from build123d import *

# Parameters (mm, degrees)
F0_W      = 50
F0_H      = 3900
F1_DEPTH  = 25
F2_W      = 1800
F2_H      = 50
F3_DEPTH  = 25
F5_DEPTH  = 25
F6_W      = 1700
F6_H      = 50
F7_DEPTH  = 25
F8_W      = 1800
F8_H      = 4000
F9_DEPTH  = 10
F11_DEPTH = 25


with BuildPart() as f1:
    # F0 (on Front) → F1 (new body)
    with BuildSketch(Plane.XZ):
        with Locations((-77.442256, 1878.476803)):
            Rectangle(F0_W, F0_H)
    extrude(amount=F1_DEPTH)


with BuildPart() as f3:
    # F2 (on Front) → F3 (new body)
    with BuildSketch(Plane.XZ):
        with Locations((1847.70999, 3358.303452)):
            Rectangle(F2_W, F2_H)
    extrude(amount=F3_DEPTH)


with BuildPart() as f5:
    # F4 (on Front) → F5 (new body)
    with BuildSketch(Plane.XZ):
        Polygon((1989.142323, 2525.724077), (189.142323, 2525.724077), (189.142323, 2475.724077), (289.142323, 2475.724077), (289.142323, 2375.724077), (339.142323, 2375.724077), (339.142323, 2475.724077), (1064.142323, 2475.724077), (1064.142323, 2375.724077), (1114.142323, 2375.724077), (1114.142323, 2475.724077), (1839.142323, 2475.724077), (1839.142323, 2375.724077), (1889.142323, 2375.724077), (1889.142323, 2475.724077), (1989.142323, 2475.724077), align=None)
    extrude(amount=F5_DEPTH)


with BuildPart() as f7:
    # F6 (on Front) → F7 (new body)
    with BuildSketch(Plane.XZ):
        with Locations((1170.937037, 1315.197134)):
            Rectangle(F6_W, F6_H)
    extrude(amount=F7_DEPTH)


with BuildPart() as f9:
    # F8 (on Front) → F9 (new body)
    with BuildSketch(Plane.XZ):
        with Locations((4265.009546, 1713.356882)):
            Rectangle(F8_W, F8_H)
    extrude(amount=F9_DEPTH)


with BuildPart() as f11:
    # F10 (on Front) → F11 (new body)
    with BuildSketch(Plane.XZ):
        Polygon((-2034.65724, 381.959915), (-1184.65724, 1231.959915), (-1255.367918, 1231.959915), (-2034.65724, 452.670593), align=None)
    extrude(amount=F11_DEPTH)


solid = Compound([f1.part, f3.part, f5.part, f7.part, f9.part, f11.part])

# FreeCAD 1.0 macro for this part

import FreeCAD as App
import Part
import Sketcher
Q = App.Units.Quantity

doc = App.newDocument("Part")
body = doc.addObject("PartDesign::Body", "Body")

# Sketch on XZ plane
sketch1 = body.newObject("Sketcher::SketchObject", "Sketch")
sketch1.AttachmentSupport = (doc.getObject("XZ_Plane"), [""])
sketch1.MapMode = "FlatFace"
sketch1.addGeometry(Part.LineSegment(App.Vector(-102.442256, 3828.476803, 0), App.Vector(-102.442256, -71.523197, 0)), False)
sketch1.addGeometry(Part.LineSegment(App.Vector(-102.442256, -71.523197, 0), App.Vector(-52.442256, -71.523197, 0)), False)
sketch1.addGeometry(Part.LineSegment(App.Vector(-52.442256, -71.523197, 0), App.Vector(-52.442256, 3828.476803, 0)), False)
sketch1.addGeometry(Part.LineSegment(App.Vector(-52.442256, 3828.476803, 0), App.Vector(-102.442256, 3828.476803, 0)), False)
sketch1.addConstraint(Sketcher.Constraint("Coincident", 0, 2, 1, 1))
sketch1.addConstraint(Sketcher.Constraint("Coincident", 1, 2, 2, 1))
sketch1.addConstraint(Sketcher.Constraint("Coincident", 2, 2, 3, 1))
sketch1.addConstraint(Sketcher.Constraint("Coincident", 3, 2, 0, 1))
sketch1.addConstraint(Sketcher.Constraint("Vertical", 0))
sketch1.addConstraint(Sketcher.Constraint("Horizontal", 1))
sketch1.addConstraint(Sketcher.Constraint("Vertical", 2))
sketch1.addConstraint(Sketcher.Constraint("Horizontal", 3))
sketch1.addConstraint(Sketcher.Constraint("DistanceX", 1, 1, 1, 2, Q("50 mm")))
sketch1.addConstraint(Sketcher.Constraint("DistanceY", 0, 2, 0, 1, Q("3900 mm")))
sketch1.addConstraint(Sketcher.Constraint("DistanceX", 0, 2, -1, 1, Q("102.442256 mm")))
sketch1.addConstraint(Sketcher.Constraint("DistanceY", 0, 2, -1, 1, Q("71.523197 mm")))
pad1 = body.newObject("PartDesign::Pad", "Pad")
pad1.Profile = sketch1
pad1.Length = 25
body2 = doc.addObject("PartDesign::Body", "Body001")

# Sketch on XZ plane
sketch2 = body2.newObject("Sketcher::SketchObject", "Sketch001")
sketch2.AttachmentSupport = (doc.getObject("XZ_Plane001"), [""])
sketch2.MapMode = "FlatFace"
sketch2.addGeometry(Part.LineSegment(App.Vector(947.70999, 3383.303452, 0), App.Vector(947.70999, 3333.303452, 0)), False)
sketch2.addGeometry(Part.LineSegment(App.Vector(947.70999, 3333.303452, 0), App.Vector(2747.70999, 3333.303452, 0)), False)
sketch2.addGeometry(Part.LineSegment(App.Vector(2747.70999, 3333.303452, 0), App.Vector(2747.70999, 3383.303452, 0)), False)
sketch2.addGeometry(Part.LineSegment(App.Vector(2747.70999, 3383.303452, 0), App.Vector(947.70999, 3383.303452, 0)), False)
sketch2.addConstraint(Sketcher.Constraint("Coincident", 0, 2, 1, 1))
sketch2.addConstraint(Sketcher.Constraint("Coincident", 1, 2, 2, 1))
sketch2.addConstraint(Sketcher.Constraint("Coincident", 2, 2, 3, 1))
sketch2.addConstraint(Sketcher.Constraint("Coincident", 3, 2, 0, 1))
sketch2.addConstraint(Sketcher.Constraint("Vertical", 0))
sketch2.addConstraint(Sketcher.Constraint("Horizontal", 1))
sketch2.addConstraint(Sketcher.Constraint("Vertical", 2))
sketch2.addConstraint(Sketcher.Constraint("Horizontal", 3))
sketch2.addConstraint(Sketcher.Constraint("DistanceX", 1, 1, 1, 2, Q("1800 mm")))
sketch2.addConstraint(Sketcher.Constraint("DistanceY", 0, 2, 0, 1, Q("50 mm")))
sketch2.addConstraint(Sketcher.Constraint("DistanceX", -1, 1, 0, 2, Q("947.70999 mm")))
sketch2.addConstraint(Sketcher.Constraint("DistanceY", -1, 1, 0, 2, Q("3333.303452 mm")))
pad2 = body2.newObject("PartDesign::Pad", "Pad001")
pad2.Profile = sketch2
pad2.Length = 25
body3 = doc.addObject("PartDesign::Body", "Body002")

# Sketch on XZ plane
sketch3 = body3.newObject("Sketcher::SketchObject", "Sketch002")
sketch3.AttachmentSupport = (doc.getObject("XZ_Plane002"), [""])
sketch3.MapMode = "FlatFace"
sketch3.addGeometry(Part.LineSegment(App.Vector(1989.142323, 2525.724077, 0), App.Vector(189.142323, 2525.724077, 0)), False)
sketch3.addGeometry(Part.LineSegment(App.Vector(189.142323, 2525.724077, 0), App.Vector(189.142323, 2475.724077, 0)), False)
sketch3.addGeometry(Part.LineSegment(App.Vector(189.142323, 2475.724077, 0), App.Vector(289.142323, 2475.724077, 0)), False)
sketch3.addGeometry(Part.LineSegment(App.Vector(289.142323, 2475.724077, 0), App.Vector(289.142323, 2375.724077, 0)), False)
sketch3.addGeometry(Part.LineSegment(App.Vector(289.142323, 2375.724077, 0), App.Vector(339.142323, 2375.724077, 0)), False)
sketch3.addGeometry(Part.LineSegment(App.Vector(339.142323, 2375.724077, 0), App.Vector(339.142323, 2475.724077, 0)), False)
sketch3.addGeometry(Part.LineSegment(App.Vector(339.142323, 2475.724077, 0), App.Vector(1064.142323, 2475.724077, 0)), False)
sketch3.addGeometry(Part.LineSegment(App.Vector(1064.142323, 2475.724077, 0), App.Vector(1064.142323, 2375.724077, 0)), False)
sketch3.addGeometry(Part.LineSegment(App.Vector(1064.142323, 2375.724077, 0), App.Vector(1114.142323, 2375.724077, 0)), False)
sketch3.addGeometry(Part.LineSegment(App.Vector(1114.142323, 2375.724077, 0), App.Vector(1114.142323, 2475.724077, 0)), False)
sketch3.addGeometry(Part.LineSegment(App.Vector(1114.142323, 2475.724077, 0), App.Vector(1839.142323, 2475.724077, 0)), False)
sketch3.addGeometry(Part.LineSegment(App.Vector(1839.142323, 2475.724077, 0), App.Vector(1839.142323, 2375.724077, 0)), False)
sketch3.addGeometry(Part.LineSegment(App.Vector(1839.142323, 2375.724077, 0), App.Vector(1889.142323, 2375.724077, 0)), False)
sketch3.addGeometry(Part.LineSegment(App.Vector(1889.142323, 2375.724077, 0), App.Vector(1889.142323, 2475.724077, 0)), False)
sketch3.addGeometry(Part.LineSegment(App.Vector(1889.142323, 2475.724077, 0), App.Vector(1989.142323, 2475.724077, 0)), False)
sketch3.addGeometry(Part.LineSegment(App.Vector(1989.142323, 2475.724077, 0), App.Vector(1989.142323, 2525.724077, 0)), False)
sketch3.addConstraint(Sketcher.Constraint("Coincident", 0, 2, 1, 1))
sketch3.addConstraint(Sketcher.Constraint("Coincident", 1, 2, 2, 1))
sketch3.addConstraint(Sketcher.Constraint("Coincident", 2, 2, 3, 1))
sketch3.addConstraint(Sketcher.Constraint("Coincident", 3, 2, 4, 1))
sketch3.addConstraint(Sketcher.Constraint("Coincident", 4, 2, 5, 1))
sketch3.addConstraint(Sketcher.Constraint("Coincident", 5, 2, 6, 1))
sketch3.addConstraint(Sketcher.Constraint("Coincident", 6, 2, 7, 1))
sketch3.addConstraint(Sketcher.Constraint("Coincident", 7, 2, 8, 1))
sketch3.addConstraint(Sketcher.Constraint("Coincident", 8, 2, 9, 1))
sketch3.addConstraint(Sketcher.Constraint("Coincident", 9, 2, 10, 1))
sketch3.addConstraint(Sketcher.Constraint("Coincident", 10, 2, 11, 1))
sketch3.addConstraint(Sketcher.Constraint("Coincident", 11, 2, 12, 1))
sketch3.addConstraint(Sketcher.Constraint("Coincident", 12, 2, 13, 1))
sketch3.addConstraint(Sketcher.Constraint("Coincident", 13, 2, 14, 1))
sketch3.addConstraint(Sketcher.Constraint("Coincident", 14, 2, 15, 1))
sketch3.addConstraint(Sketcher.Constraint("Coincident", 15, 2, 0, 1))
sketch3.addConstraint(Sketcher.Constraint("Horizontal", 0))
sketch3.addConstraint(Sketcher.Constraint("Vertical", 1))
sketch3.addConstraint(Sketcher.Constraint("Horizontal", 2))
sketch3.addConstraint(Sketcher.Constraint("Vertical", 3))
sketch3.addConstraint(Sketcher.Constraint("Horizontal", 4))
sketch3.addConstraint(Sketcher.Constraint("Vertical", 5))
sketch3.addConstraint(Sketcher.Constraint("Horizontal", 6))
sketch3.addConstraint(Sketcher.Constraint("Vertical", 7))
sketch3.addConstraint(Sketcher.Constraint("Horizontal", 8))
sketch3.addConstraint(Sketcher.Constraint("Vertical", 9))
sketch3.addConstraint(Sketcher.Constraint("Horizontal", 10))
sketch3.addConstraint(Sketcher.Constraint("Vertical", 11))
sketch3.addConstraint(Sketcher.Constraint("Horizontal", 12))
sketch3.addConstraint(Sketcher.Constraint("Vertical", 13))
sketch3.addConstraint(Sketcher.Constraint("Horizontal", 14))
sketch3.addConstraint(Sketcher.Constraint("Vertical", 15))
sketch3.addConstraint(Sketcher.Constraint("Horizontal", 2, 2, 5, 2))
sketch3.addConstraint(Sketcher.Constraint("Horizontal", 4, 2, 7, 2))
sketch3.addConstraint(Sketcher.Constraint("Horizontal", 6, 2, 9, 2))
sketch3.addConstraint(Sketcher.Constraint("Horizontal", 8, 2, 11, 2))
sketch3.addConstraint(Sketcher.Constraint("Horizontal", 10, 2, 13, 2))
sketch3.addConstraint(Sketcher.Constraint("Equal", 4, 8))
sketch3.addConstraint(Sketcher.Constraint("Equal", 6, 10))
sketch3.addConstraint(Sketcher.Constraint("Equal", 8, 12))
sketch3.addConstraint(Sketcher.Constraint("Equal", 2, 14))
sketch3.addConstraint(Sketcher.Constraint("Equal", 12, 1))
sketch3.addConstraint(Sketcher.Constraint("Equal", 14, 3))
sketch3.addConstraint(Sketcher.Constraint("DistanceX", 0, 2, 0, 1, Q("1800 mm")))
sketch3.addConstraint(Sketcher.Constraint("DistanceX", 2, 1, 2, 2, Q("100 mm")))
sketch3.addConstraint(Sketcher.Constraint("DistanceX", 4, 1, 4, 2, Q("50 mm")))
sketch3.addConstraint(Sketcher.Constraint("DistanceX", -1, 1, 0, 2, Q("189.142323 mm")))
sketch3.addConstraint(Sketcher.Constraint("DistanceY", -1, 1, 0, 2, Q("2525.724077 mm")))
pad3 = body3.newObject("PartDesign::Pad", "Pad002")
pad3.Profile = sketch3
pad3.Length = 25
body4 = doc.addObject("PartDesign::Body", "Body003")

# Sketch on XZ plane
sketch4 = body4.newObject("Sketcher::SketchObject", "Sketch003")
sketch4.AttachmentSupport = (doc.getObject("XZ_Plane003"), [""])
sketch4.MapMode = "FlatFace"
sketch4.addGeometry(Part.LineSegment(App.Vector(320.937037, 1340.197134, 0), App.Vector(320.937037, 1290.197134, 0)), False)
sketch4.addGeometry(Part.LineSegment(App.Vector(320.937037, 1290.197134, 0), App.Vector(2020.937037, 1290.197134, 0)), False)
sketch4.addGeometry(Part.LineSegment(App.Vector(2020.937037, 1290.197134, 0), App.Vector(2020.937037, 1340.197134, 0)), False)
sketch4.addGeometry(Part.LineSegment(App.Vector(2020.937037, 1340.197134, 0), App.Vector(320.937037, 1340.197134, 0)), False)
sketch4.addConstraint(Sketcher.Constraint("Coincident", 0, 2, 1, 1))
sketch4.addConstraint(Sketcher.Constraint("Coincident", 1, 2, 2, 1))
sketch4.addConstraint(Sketcher.Constraint("Coincident", 2, 2, 3, 1))
sketch4.addConstraint(Sketcher.Constraint("Coincident", 3, 2, 0, 1))
sketch4.addConstraint(Sketcher.Constraint("Vertical", 0))
sketch4.addConstraint(Sketcher.Constraint("Horizontal", 1))
sketch4.addConstraint(Sketcher.Constraint("Vertical", 2))
sketch4.addConstraint(Sketcher.Constraint("Horizontal", 3))
sketch4.addConstraint(Sketcher.Constraint("DistanceX", 1, 1, 1, 2, Q("1700 mm")))
sketch4.addConstraint(Sketcher.Constraint("DistanceY", 0, 2, 0, 1, Q("50 mm")))
sketch4.addConstraint(Sketcher.Constraint("DistanceX", -1, 1, 0, 2, Q("320.937037 mm")))
sketch4.addConstraint(Sketcher.Constraint("DistanceY", -1, 1, 0, 2, Q("1290.197134 mm")))
pad4 = body4.newObject("PartDesign::Pad", "Pad003")
pad4.Profile = sketch4
pad4.Length = 25
body5 = doc.addObject("PartDesign::Body", "Body004")

# Sketch on XZ plane
sketch5 = body5.newObject("Sketcher::SketchObject", "Sketch004")
sketch5.AttachmentSupport = (doc.getObject("XZ_Plane004"), [""])
sketch5.MapMode = "FlatFace"
sketch5.addGeometry(Part.LineSegment(App.Vector(3365.009546, 3713.356882, 0), App.Vector(3365.009546, -286.643118, 0)), False)
sketch5.addGeometry(Part.LineSegment(App.Vector(3365.009546, -286.643118, 0), App.Vector(5165.009546, -286.643118, 0)), False)
sketch5.addGeometry(Part.LineSegment(App.Vector(5165.009546, -286.643118, 0), App.Vector(5165.009546, 3713.356882, 0)), False)
sketch5.addGeometry(Part.LineSegment(App.Vector(5165.009546, 3713.356882, 0), App.Vector(3365.009546, 3713.356882, 0)), False)
sketch5.addConstraint(Sketcher.Constraint("Coincident", 0, 2, 1, 1))
sketch5.addConstraint(Sketcher.Constraint("Coincident", 1, 2, 2, 1))
sketch5.addConstraint(Sketcher.Constraint("Coincident", 2, 2, 3, 1))
sketch5.addConstraint(Sketcher.Constraint("Coincident", 3, 2, 0, 1))
sketch5.addConstraint(Sketcher.Constraint("Vertical", 0))
sketch5.addConstraint(Sketcher.Constraint("Horizontal", 1))
sketch5.addConstraint(Sketcher.Constraint("Vertical", 2))
sketch5.addConstraint(Sketcher.Constraint("Horizontal", 3))
sketch5.addConstraint(Sketcher.Constraint("DistanceX", 1, 1, 1, 2, Q("1800 mm")))
sketch5.addConstraint(Sketcher.Constraint("DistanceY", 0, 2, 0, 1, Q("4000 mm")))
sketch5.addConstraint(Sketcher.Constraint("DistanceY", 0, 2, -1, 1, Q("286.643118 mm")))
sketch5.addConstraint(Sketcher.Constraint("DistanceX", -1, 1, 0, 2, Q("3365.009546 mm")))
pad5 = body5.newObject("PartDesign::Pad", "Pad004")
pad5.Profile = sketch5
pad5.Length = 10
body6 = doc.addObject("PartDesign::Body", "Body005")

# Sketch on XZ plane
sketch6 = body6.newObject("Sketcher::SketchObject", "Sketch005")
sketch6.AttachmentSupport = (doc.getObject("XZ_Plane005"), [""])
sketch6.MapMode = "FlatFace"
sketch6.addGeometry(Part.LineSegment(App.Vector(-2034.65724, 381.959915, 0), App.Vector(-1184.65724, 1231.959915, 0)), False)
sketch6.addGeometry(Part.LineSegment(App.Vector(-1184.65724, 1231.959915, 0), App.Vector(-1255.367918, 1231.959915, 0)), False)
sketch6.addGeometry(Part.LineSegment(App.Vector(-1255.367918, 1231.959915, 0), App.Vector(-2034.65724, 452.670593, 0)), False)
sketch6.addGeometry(Part.LineSegment(App.Vector(-2034.65724, 452.670593, 0), App.Vector(-2034.65724, 381.959915, 0)), False)
sketch6.addConstraint(Sketcher.Constraint("Coincident", 0, 2, 1, 1))
sketch6.addConstraint(Sketcher.Constraint("Coincident", 1, 2, 2, 1))
sketch6.addConstraint(Sketcher.Constraint("Coincident", 2, 2, 3, 1))
sketch6.addConstraint(Sketcher.Constraint("Coincident", 3, 2, 0, 1))
sketch6.addConstraint(Sketcher.Constraint("Horizontal", 1))
sketch6.addConstraint(Sketcher.Constraint("Vertical", 3))
sketch6.addConstraint(Sketcher.Constraint("Parallel", 0, 2))
sketch6.addConstraint(Sketcher.Constraint("Equal", 1, 3))
sketch6.addConstraint(Sketcher.Constraint("DistanceX", 2, 2, 0, 2, Q("850 mm")))
sketch6.addConstraint(Sketcher.Constraint("Distance", 2, Q("1102.081528 mm")))
sketch6.addConstraint(Sketcher.Constraint("DistanceX", 0, 2, -1, 1, Q("1184.65724 mm")))
sketch6.addConstraint(Sketcher.Constraint("DistanceY", -1, 1, 0, 2, Q("1231.959915 mm")))
pad6 = body6.newObject("PartDesign::Pad", "Pad005")
pad6.Profile = sketch6
pad6.Length = 25

doc.recompute()
